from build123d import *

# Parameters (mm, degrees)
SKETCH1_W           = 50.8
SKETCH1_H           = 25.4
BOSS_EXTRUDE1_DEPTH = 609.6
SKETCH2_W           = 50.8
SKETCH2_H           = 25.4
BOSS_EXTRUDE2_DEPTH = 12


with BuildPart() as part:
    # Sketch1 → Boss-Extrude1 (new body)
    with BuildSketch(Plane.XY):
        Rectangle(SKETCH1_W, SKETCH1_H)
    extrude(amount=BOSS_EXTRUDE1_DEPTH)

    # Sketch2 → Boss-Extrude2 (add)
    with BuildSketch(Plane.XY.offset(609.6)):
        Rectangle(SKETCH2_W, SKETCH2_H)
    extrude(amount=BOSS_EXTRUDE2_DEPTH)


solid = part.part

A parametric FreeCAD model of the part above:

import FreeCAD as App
import Part
import Sketcher
from FreeCAD import Vector
Q = App.Units.Quantity


def add_polygon(sketch, points):
    """Adds a closed chain of lines whose ends are joined by coincident constraints."""
    first, n = sketch.GeometryCount, len(points)
    for a, b in zip(points, points[1:] + points[:1]):
        sketch.addGeometry(Part.LineSegment(App.Vector(*a, 0), App.Vector(*b, 0)), False)
    for i in range(n):
        sketch.addConstraint(Sketcher.Constraint("Coincident", first + i, 2, first + (i + 1) % n, 1))

doc = App.newDocument("Part")
body = doc.addObject("PartDesign::Body", "Body")

sketch1 = doc.addObject("Sketcher::SketchObject", "Sketch")
body.addObject(sketch1)
sketch1.AttachmentSupport = (doc.XY_Plane, [""])
sketch1.MapMode = "FlatFace"
add_polygon(sketch1, [(-25, 13), (-25, -13), (25, -13), (25, 13)])
sketch1.addConstraint(Sketcher.Constraint("Vertical", 0))
sketch1.addConstraint(Sketcher.Constraint("Horizontal", 1))
sketch1.addConstraint(Sketcher.Constraint("Vertical", 2))
sketch1.addConstraint(Sketcher.Constraint("Horizontal", 3))
sketch1.addConstraint(Sketcher.Constraint("Symmetric", 0, 2, 2, 2, -1, 1))
sketch1.addConstraint(Sketcher.Constraint("DistanceX", 1, 1, 1, 2, Q("2 in")))
sketch1.addConstraint(Sketcher.Constraint("DistanceY", 0, 2, 0, 1, Q("1 in")))
pad1 = doc.addObject("PartDesign::Pad", "Pad")
body.addObject(pad1)
pad1.Profile = sketch1
pad1.Length = Q("24 in")

sketch2 = doc.addObject("Sketcher::SketchObject", "Sketch001")
body.addObject(sketch2)
sketch2.AttachmentSupport = (doc.XY_Plane, [""])
sketch2.MapMode = "FlatFace"
sketch2.AttachmentOffset = App.Placement(Vector(0, 0, 24 * 25.4), App.Rotation())
add_polygon(sketch2, [(-25, 13), (-25, -13), (25, -13), (25, 13)])
sketch2.addConstraint(Sketcher.Constraint("Vertical", 0))
sketch2.addConstraint(Sketcher.Constraint("Horizontal", 1))
sketch2.addConstraint(Sketcher.Constraint("Vertical", 2))
sketch2.addConstraint(Sketcher.Constraint("Horizontal", 3))
sketch2.addConstraint(Sketcher.Constraint("Symmetric", 0, 2, 2, 2, -1, 1))
sketch2.addConstraint(Sketcher.Constraint("DistanceX", 1, 1, 1, 2, Q("2 in")))
sketch2.addConstraint(Sketcher.Constraint("DistanceY", 0, 2, 0, 1, Q("1 in")))
pad2 = doc.addObject("PartDesign::Pad", "Pad001")
body.addObject(pad2)
pad2.Profile = sketch2
pad2.Length = 12

doc.recompute()
